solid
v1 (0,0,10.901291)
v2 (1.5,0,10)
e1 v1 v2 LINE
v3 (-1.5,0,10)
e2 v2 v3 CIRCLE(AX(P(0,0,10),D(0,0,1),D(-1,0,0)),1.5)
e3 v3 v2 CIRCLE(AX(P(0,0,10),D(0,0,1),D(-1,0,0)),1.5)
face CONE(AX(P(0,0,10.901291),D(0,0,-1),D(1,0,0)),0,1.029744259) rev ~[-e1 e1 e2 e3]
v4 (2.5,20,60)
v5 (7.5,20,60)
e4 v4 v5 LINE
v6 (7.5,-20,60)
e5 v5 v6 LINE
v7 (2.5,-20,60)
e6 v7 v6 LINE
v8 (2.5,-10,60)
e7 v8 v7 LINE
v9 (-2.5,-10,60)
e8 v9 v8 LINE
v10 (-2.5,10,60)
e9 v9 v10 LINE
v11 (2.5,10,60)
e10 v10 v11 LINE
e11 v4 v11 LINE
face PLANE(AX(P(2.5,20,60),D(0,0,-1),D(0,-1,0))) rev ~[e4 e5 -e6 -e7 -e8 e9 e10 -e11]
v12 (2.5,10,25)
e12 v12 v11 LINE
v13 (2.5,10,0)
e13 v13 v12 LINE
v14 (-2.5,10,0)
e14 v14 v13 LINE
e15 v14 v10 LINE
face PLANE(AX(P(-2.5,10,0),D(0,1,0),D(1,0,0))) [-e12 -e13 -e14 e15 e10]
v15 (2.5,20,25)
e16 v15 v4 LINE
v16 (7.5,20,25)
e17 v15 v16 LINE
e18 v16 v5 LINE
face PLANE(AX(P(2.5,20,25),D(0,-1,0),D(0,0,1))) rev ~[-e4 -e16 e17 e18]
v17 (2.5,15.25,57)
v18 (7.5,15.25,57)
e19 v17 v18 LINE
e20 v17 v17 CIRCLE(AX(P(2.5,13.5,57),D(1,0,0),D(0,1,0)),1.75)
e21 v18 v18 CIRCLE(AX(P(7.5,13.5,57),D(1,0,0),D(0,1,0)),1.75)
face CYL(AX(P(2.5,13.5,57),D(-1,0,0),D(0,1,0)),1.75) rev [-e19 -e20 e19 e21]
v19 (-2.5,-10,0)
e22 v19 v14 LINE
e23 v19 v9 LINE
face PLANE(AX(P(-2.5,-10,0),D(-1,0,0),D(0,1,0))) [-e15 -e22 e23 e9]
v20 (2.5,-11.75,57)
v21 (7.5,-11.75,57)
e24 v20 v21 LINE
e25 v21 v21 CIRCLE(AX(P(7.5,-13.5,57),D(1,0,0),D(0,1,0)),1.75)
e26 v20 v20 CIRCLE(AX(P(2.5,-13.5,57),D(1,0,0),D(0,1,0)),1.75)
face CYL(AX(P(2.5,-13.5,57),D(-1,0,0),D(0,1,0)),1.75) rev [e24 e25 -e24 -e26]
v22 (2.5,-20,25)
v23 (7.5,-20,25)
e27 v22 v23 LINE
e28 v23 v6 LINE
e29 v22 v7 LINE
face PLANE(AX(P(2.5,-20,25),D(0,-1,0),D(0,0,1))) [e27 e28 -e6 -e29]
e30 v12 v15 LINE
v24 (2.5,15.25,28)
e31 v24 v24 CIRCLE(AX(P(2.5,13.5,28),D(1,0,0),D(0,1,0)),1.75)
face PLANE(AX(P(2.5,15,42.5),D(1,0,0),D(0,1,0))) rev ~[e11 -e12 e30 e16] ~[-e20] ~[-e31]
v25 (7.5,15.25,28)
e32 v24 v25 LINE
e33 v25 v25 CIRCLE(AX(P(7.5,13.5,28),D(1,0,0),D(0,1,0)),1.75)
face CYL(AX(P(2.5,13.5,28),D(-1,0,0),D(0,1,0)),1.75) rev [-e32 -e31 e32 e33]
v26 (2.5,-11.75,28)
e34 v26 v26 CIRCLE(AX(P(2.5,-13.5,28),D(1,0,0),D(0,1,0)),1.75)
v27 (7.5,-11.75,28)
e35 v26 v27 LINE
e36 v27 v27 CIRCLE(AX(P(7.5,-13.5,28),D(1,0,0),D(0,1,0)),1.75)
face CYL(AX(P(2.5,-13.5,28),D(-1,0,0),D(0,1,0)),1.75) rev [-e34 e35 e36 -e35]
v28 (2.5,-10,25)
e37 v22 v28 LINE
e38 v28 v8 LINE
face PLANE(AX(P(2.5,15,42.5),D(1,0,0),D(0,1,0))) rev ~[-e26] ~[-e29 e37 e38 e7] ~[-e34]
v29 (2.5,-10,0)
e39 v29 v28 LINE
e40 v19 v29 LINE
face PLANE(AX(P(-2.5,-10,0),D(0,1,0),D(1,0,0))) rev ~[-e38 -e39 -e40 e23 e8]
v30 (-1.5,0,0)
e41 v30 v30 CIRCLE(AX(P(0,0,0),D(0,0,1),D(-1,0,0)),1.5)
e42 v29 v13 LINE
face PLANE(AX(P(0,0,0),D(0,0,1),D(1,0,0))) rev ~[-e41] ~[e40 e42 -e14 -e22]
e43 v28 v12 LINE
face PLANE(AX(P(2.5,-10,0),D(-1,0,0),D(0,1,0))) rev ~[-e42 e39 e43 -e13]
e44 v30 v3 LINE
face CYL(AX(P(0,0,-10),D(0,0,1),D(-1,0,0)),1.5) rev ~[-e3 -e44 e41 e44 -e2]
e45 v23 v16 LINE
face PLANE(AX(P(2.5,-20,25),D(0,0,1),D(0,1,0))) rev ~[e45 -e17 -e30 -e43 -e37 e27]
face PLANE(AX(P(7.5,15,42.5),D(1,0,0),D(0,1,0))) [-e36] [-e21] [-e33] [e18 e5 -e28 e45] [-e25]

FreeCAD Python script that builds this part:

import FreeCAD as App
import Part
import Sketcher
from FreeCAD import Vector

doc = App.newDocument("Part")
body = doc.addObject("PartDesign::Body", "Body")

# Sketch on XY plane
sketch1 = body.newObject("Sketcher::SketchObject", "Sketch")
sketch1.AttachmentSupport = (doc.getObject("XY_Plane"), [""])
sketch1.MapMode = "FlatFace"
sketch1.addGeometry([
    Part.LineSegment(Vector(-2, 10, 0), Vector(-2, -10, 0)),
    Part.LineSegment(Vector(-2, -10, 0), Vector(2, -10, 0)),
    Part.LineSegment(Vector(2, -10, 0), Vector(2, 10, 0)),
    Part.LineSegment(Vector(2, 10, 0), Vector(-2, 10, 0)),
], False)
sketch1.addConstraint([
    Sketcher.Constraint("Coincident", 0, 2, 1, 1),
    Sketcher.Constraint("Coincident", 1, 2, 2, 1),
    Sketcher.Constraint("Coincident", 2, 2, 3, 1),
    Sketcher.Constraint("Coincident", 3, 2, 0, 1),
    Sketcher.Constraint("Vertical", 0),
    Sketcher.Constraint("Horizontal", 1),
    Sketcher.Constraint("Vertical", 2),
    Sketcher.Constraint("Horizontal", 3),
    Sketcher.Constraint("Symmetric", 0, 2, 2, 2, -1, 1),
    Sketcher.Constraint("DistanceX", 1, 1, 1, 2, 5.0),
    Sketcher.Constraint("DistanceY", 0, 2, 0, 1, 20.0),
])
pad1 = body.newObject("PartDesign::Pad", "Pad")
pad1.Profile = sketch1
pad1.Length = 60

# Sketch on YZ plane
sketch2 = body.newObject("Sketcher::SketchObject", "Sketch001")
sketch2.AttachmentSupport = (doc.getObject("YZ_Plane"), [""])
sketch2.MapMode = "FlatFace"
sketch2.AttachmentOffset = App.Placement(Vector(0, 0, 2.5), App.Rotation())
sketch2.addGeometry([
    Part.LineSegment(Vector(20, 25, 0), Vector(20, 60, 0)),  # 0
    Part.LineSegment(Vector(20, 60, 0), Vector(-20, 60, 0)),  # 1
    Part.LineSegment(Vector(-20, 60, 0), Vector(-20, 25, 0)),  # 2
    Part.LineSegment(Vector(-20, 25, 0), Vector(20, 25, 0)),  # 3
    Part.Circle(Vector(13.5, 28, 0), Vector(0, 0, 1), 1.8),  # 4
    Part.Circle(Vector(13.5, 57, 0), Vector(0, 0, 1), 1.8),  # 5
    Part.Circle(Vector(-13.5, 57, 0), Vector(0, 0, 1), 1.8),  # 6
    Part.Circle(Vector(-13.5, 28, 0), Vector(0, 0, 1), 1.8),  # 7
], False)
sketch2.addConstraint([
    Sketcher.Constraint("Coincident", 0, 2, 1, 1),
    Sketcher.Constraint("Coincident", 1, 2, 2, 1),
    Sketcher.Constraint("Coincident", 2, 2, 3, 1),
    Sketcher.Constraint("Coincident", 3, 2, 0, 1),
    Sketcher.Constraint("Vertical", 0),
    Sketcher.Constraint("Horizontal", 1),
    Sketcher.Constraint("Vertical", 2),
    Sketcher.Constraint("Horizontal", 3),
    Sketcher.Constraint("Equal", 4, 5),
    Sketcher.Constraint("Equal", 5, 6),
    Sketcher.Constraint("Equal", 6, 7),
    Sketcher.Constraint("Symmetric", 5, 3, 6, 3, -2),
    Sketcher.Constraint("Symmetric", 4, 3, 7, 3, -2),
    Sketcher.Constraint("Vertical", 4, 3, 5, 3),
    Sketcher.Constraint("Diameter", 4, 3.5),
    Sketcher.Constraint("DistanceX", 1, 2, 1, 1, 40.0),
    Sketcher.Constraint("DistanceY", 0, 1, 0, 2, 35.0),
    Sketcher.Constraint("DistanceY", -1, 1, 4, 3, 28.0),
    Sketcher.Constraint("DistanceY", -1, 1, 5, 3, 57.0),
    Sketcher.Constraint("DistanceX", -1, 1, 0, 2, 20.0),
    Sketcher.Constraint("DistanceY", -1, 1, 0, 2, 60.0),
    Sketcher.Constraint("DistanceX", 6, 3, 5, 3, 27.0),
])
pad2 = body.newObject("PartDesign::Pad", "Pad001")
pad2.Profile = sketch2
pad2.Length = 5

# Sketch on XY plane
sketch3 = body.newObject("Sketcher::SketchObject", "Sketch002")
sketch3.AttachmentSupport = (doc.getObject("XY_Plane"), [""])
sketch3.MapMode = "FlatFace"
sketch3.addGeometry(Part.Circle(Vector(0, 0, 0), Vector(0, 0, 1), 1.5), False)
sketch3.addConstraint([
    Sketcher.Constraint("Coincident", 0, 3, -1, 1),
    Sketcher.Constraint("Diameter", 0, 3.0),
])
doc.recompute()
hole = body.newObject("PartDesign::Hole", "Hole")
hole.Profile = sketch3
hole.ThreadType = "None"
hole.Diameter = 3
hole.DepthType = "Dimension"
hole.Depth = 10
hole.DrillPoint = "Angled"
hole.DrillPointAngle = 118
hole.Reversed = True

doc.recompute()
